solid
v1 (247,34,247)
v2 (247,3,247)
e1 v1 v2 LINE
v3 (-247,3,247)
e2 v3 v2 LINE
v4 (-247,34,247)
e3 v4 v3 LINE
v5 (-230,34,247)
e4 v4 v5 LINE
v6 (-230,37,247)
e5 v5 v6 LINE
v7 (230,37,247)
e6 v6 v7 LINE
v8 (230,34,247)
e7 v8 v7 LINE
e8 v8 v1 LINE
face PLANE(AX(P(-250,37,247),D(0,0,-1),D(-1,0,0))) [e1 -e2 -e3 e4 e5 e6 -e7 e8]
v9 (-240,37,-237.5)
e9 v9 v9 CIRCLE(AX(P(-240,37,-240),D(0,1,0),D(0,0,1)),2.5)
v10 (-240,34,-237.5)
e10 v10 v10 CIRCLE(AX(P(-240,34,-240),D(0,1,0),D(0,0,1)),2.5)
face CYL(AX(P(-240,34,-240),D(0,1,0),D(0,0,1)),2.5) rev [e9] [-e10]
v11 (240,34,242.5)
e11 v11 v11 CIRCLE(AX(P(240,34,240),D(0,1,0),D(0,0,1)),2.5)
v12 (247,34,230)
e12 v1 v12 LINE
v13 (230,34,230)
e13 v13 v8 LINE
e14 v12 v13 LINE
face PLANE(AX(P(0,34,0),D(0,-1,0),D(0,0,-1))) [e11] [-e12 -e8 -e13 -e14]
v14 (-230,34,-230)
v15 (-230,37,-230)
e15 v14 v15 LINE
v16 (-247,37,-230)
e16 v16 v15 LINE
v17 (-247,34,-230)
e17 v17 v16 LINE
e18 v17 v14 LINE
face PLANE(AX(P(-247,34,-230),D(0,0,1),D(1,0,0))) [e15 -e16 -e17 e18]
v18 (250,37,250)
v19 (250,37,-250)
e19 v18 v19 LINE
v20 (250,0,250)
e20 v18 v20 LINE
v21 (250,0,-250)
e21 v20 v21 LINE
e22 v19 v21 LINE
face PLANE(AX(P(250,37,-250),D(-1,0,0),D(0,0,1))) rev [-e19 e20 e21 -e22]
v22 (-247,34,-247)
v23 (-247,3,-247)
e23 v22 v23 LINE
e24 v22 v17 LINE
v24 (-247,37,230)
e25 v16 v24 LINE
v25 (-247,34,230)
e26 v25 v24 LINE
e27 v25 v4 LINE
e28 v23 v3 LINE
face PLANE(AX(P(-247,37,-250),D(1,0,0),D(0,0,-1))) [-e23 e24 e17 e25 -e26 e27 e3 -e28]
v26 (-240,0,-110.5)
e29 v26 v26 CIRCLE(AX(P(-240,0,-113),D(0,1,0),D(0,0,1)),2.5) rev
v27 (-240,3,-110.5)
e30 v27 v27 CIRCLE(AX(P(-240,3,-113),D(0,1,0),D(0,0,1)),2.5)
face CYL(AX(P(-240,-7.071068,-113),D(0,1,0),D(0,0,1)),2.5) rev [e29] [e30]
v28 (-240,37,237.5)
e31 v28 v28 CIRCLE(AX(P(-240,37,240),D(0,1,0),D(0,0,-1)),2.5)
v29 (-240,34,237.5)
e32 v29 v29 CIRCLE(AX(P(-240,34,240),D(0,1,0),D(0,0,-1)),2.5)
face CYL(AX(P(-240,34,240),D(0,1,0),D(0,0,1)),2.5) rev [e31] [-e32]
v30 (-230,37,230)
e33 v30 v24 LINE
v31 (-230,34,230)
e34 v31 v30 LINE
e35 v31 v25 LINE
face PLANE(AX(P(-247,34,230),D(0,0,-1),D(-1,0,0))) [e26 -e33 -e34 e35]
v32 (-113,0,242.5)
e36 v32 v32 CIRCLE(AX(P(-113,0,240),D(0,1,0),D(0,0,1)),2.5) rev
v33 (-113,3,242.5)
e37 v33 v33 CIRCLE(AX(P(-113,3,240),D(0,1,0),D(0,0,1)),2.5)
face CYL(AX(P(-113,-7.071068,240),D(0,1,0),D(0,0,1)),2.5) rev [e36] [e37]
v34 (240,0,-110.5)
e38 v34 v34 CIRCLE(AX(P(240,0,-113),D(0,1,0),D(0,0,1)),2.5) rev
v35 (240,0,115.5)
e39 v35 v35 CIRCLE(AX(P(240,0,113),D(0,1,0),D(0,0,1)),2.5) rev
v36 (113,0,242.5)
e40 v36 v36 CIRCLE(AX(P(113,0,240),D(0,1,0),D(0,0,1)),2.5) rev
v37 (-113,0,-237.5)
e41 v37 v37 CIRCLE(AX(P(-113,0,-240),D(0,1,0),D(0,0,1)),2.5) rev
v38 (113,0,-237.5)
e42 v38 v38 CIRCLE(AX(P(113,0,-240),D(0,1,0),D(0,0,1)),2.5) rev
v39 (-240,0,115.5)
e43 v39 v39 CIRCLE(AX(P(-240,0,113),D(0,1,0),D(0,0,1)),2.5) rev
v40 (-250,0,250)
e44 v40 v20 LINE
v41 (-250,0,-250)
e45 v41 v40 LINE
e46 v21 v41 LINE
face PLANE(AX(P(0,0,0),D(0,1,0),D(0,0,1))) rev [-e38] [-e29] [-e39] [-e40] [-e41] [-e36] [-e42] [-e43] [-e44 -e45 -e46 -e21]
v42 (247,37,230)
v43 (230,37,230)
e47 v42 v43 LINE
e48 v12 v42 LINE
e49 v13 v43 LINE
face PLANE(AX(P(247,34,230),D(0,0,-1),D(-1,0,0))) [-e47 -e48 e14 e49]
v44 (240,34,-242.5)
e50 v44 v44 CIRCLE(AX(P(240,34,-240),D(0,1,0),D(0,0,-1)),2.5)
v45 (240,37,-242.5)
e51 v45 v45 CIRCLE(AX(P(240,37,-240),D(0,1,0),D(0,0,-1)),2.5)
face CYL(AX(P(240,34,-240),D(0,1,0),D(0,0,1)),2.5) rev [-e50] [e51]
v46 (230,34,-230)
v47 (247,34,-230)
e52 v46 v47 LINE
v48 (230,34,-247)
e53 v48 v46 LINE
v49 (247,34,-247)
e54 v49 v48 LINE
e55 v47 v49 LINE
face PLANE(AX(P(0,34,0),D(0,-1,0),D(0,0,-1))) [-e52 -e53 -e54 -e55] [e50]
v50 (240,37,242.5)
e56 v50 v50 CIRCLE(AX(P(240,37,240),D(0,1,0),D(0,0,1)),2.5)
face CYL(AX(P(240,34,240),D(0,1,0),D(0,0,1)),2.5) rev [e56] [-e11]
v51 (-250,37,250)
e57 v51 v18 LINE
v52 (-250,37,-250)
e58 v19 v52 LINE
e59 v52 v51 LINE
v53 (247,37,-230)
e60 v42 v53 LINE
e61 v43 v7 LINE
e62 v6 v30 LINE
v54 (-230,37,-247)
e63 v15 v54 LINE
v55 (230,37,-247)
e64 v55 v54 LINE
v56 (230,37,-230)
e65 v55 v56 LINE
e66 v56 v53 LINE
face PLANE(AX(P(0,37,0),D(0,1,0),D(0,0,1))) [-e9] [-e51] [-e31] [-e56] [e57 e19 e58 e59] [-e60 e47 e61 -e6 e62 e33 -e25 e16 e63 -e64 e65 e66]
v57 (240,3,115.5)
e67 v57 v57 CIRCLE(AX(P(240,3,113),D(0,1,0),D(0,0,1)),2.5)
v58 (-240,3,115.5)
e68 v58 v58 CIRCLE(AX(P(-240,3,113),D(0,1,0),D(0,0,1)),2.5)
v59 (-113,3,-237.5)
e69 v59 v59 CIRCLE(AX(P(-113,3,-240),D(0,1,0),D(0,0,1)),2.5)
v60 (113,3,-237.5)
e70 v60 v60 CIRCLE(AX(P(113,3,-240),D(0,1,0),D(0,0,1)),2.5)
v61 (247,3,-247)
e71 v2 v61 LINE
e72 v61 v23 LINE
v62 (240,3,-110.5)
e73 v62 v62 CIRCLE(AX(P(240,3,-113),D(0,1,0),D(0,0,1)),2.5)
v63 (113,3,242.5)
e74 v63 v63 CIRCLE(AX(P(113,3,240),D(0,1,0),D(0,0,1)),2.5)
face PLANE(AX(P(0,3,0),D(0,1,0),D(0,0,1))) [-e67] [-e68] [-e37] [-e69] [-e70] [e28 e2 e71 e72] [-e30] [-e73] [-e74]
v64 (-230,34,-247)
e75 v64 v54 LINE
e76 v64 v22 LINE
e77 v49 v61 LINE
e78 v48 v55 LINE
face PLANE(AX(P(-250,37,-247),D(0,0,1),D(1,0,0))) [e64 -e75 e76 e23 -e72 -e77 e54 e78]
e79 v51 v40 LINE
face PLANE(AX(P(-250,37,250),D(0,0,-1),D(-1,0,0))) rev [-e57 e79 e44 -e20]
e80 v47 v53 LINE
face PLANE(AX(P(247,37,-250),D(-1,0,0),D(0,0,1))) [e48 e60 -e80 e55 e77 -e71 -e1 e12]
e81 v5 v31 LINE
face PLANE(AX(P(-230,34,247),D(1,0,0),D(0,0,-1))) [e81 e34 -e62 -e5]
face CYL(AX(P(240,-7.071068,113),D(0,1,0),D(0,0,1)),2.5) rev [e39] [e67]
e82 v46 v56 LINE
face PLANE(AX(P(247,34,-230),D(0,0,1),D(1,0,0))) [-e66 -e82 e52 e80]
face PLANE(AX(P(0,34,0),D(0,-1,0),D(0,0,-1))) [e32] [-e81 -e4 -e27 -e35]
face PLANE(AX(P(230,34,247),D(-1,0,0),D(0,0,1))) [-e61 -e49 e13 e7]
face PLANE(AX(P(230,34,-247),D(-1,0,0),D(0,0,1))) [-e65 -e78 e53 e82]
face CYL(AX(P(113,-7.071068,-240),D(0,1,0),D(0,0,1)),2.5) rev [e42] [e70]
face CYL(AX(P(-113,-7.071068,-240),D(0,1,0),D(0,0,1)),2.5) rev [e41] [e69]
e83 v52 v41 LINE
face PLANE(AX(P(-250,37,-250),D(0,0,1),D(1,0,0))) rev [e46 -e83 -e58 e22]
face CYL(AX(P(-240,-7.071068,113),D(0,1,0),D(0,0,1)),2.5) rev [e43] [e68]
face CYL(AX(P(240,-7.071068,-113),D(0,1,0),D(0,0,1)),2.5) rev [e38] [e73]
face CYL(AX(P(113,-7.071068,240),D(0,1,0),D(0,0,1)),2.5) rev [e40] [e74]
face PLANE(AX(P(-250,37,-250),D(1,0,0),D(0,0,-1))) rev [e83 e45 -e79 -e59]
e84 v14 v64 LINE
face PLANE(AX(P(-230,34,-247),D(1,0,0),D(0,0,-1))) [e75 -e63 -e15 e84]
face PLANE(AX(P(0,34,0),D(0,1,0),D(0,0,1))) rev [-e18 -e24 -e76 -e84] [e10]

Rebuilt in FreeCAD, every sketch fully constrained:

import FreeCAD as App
import Part
import Sketcher
Q = App.Units.Quantity


def faces_at(feature, points):
    """Names of the faces that lie closest to the given points."""
    faces = feature.Shape.Faces
    near = lambda p: min(range(len(faces)), key=lambda i: faces[i].distToShape(Part.Vertex(*p))[0])
    return sorted({f"Face{near(p) + 1}" for p in points})

doc = App.newDocument("Part")
body = doc.addObject("PartDesign::Body", "Body")

# Sketch on XZ plane
sketch1 = body.newObject("Sketcher::SketchObject", "Sketch")
sketch1.AttachmentSupport = (doc.getObject("XZ_Plane"), [""])
sketch1.MapMode = "FlatFace"
sketch1.addGeometry([
    Part.LineSegment(App.Vector(-250, -250, 0), App.Vector(-250, 250, 0)),
    Part.LineSegment(App.Vector(-250, 250, 0), App.Vector(250, 250, 0)),
    Part.LineSegment(App.Vector(250, 250, 0), App.Vector(250, -250, 0)),
    Part.LineSegment(App.Vector(250, -250, 0), App.Vector(-250, -250, 0)),
], False)
sketch1.addConstraint([
    Sketcher.Constraint("Coincident", 0, 2, 1, 1),
    Sketcher.Constraint("Coincident", 1, 2, 2, 1),
    Sketcher.Constraint("Coincident", 2, 2, 3, 1),
    Sketcher.Constraint("Coincident", 3, 2, 0, 1),
    Sketcher.Constraint("Vertical", 0),
    Sketcher.Constraint("Horizontal", 1),
    Sketcher.Constraint("Vertical", 2),
    Sketcher.Constraint("Horizontal", 3),
    Sketcher.Constraint("Symmetric", 0, 2, 2, 2, -1, 1),
    Sketcher.Constraint("Equal", 3, 0),
    Sketcher.Constraint("DistanceX", 1, 1, 1, 2, Q("500 mm")),
])
pad1 = body.newObject("PartDesign::Pad", "Pad")
pad1.Profile = sketch1
pad1.Length = 37
pad1.Reversed = True
doc.recompute()

thickness = body.newObject("PartDesign::Thickness", "Thickness")
thickness.Base = (pad1, faces_at(pad1, [(0, 37, 0)]))
thickness.Value = 3
thickness.Reversed = True
thickness.Join = "Intersection"

# Sketch on XZ plane
sketch2 = body.newObject("Sketcher::SketchObject", "Sketch001")
sketch2.AttachmentSupport = (doc.getObject("XZ_Plane"), [""])
sketch2.MapMode = "FlatFace"
sketch2.AttachmentOffset = App.Placement(App.Vector(0, 0, -37), App.Rotation())
sketch2.addGeometry([
    Part.Circle(App.Vector(113, 240, 0), App.Vector(0, 0, 1), 2.5),  # 0
    Part.Circle(App.Vector(-113, 240, 0), App.Vector(0, 0, 1), 2.5),  # 1
    Part.Circle(App.Vector(240, -113, 0), App.Vector(0, 0, 1), 2.5),  # 2
    Part.Circle(App.Vector(240, 113, 0), App.Vector(0, 0, 1), 2.5),  # 3
    Part.Circle(App.Vector(-240, 113, 0), App.Vector(0, 0, 1), 2.5),  # 4
    Part.Circle(App.Vector(-240, -113, 0), App.Vector(0, 0, 1), 2.5),  # 5
    Part.Circle(App.Vector(-113, -240, 0), App.Vector(0, 0, 1), 2.5),  # 6
    Part.Circle(App.Vector(113, -240, 0), App.Vector(0, 0, 1), 2.5),  # 7
], False)
sketch2.addConstraint([
    Sketcher.Constraint("Equal", 0, 1),
    Sketcher.Constraint("Equal", 1, 2),
    Sketcher.Constraint("Equal", 2, 3),
    Sketcher.Constraint("Equal", 3, 4),
    Sketcher.Constraint("Equal", 4, 5),
    Sketcher.Constraint("Equal", 5, 6),
    Sketcher.Constraint("Equal", 6, 7),
    Sketcher.Constraint("Symmetric", 2, 3, 4, 3, -1, 1),
    Sketcher.Constraint("Symmetric", 3, 3, 5, 3, -1, 1),
    Sketcher.Constraint("Symmetric", 0, 3, 6, 3, -1, 1),
    Sketcher.Constraint("Symmetric", 1, 3, 7, 3, -1, 1),
    Sketcher.Constraint("Symmetric", 0, 3, 1, 3, -2),
    Sketcher.Constraint("Symmetric", 3, 3, 4, 3, -2),
    Sketcher.Constraint("Diameter", 0, Q("5 mm")),
    Sketcher.Constraint("DistanceX", -1, 1, 0, 3, Q("113 mm")),
    Sketcher.Constraint("DistanceY", -1, 1, 0, 3, Q("240 mm")),
    Sketcher.Constraint("DistanceX", -1, 1, 2, 3, Q("240 mm")),
    Sketcher.Constraint("DistanceY", 2, 3, -1, 1, Q("113 mm")),
])
pocket1 = body.newObject("PartDesign::Pocket", "Pocket")
pocket1.Profile = sketch2
pocket1.Length = 37
pocket1.Reversed = True

# Sketch on XZ plane
sketch3 = body.newObject("Sketcher::SketchObject", "Sketch002")
sketch3.AttachmentSupport = (doc.getObject("XZ_Plane"), [""])
sketch3.MapMode = "FlatFace"
sketch3.AttachmentOffset = App.Placement(App.Vector(0, 0, -37), App.Rotation())
sketch3.addGeometry([
    Part.LineSegment(App.Vector(-247, -247, 0), App.Vector(-247, -230, 0)),  # 0
    Part.LineSegment(App.Vector(-247, -230, 0), App.Vector(-230, -230, 0)),  # 1
    Part.LineSegment(App.Vector(-230, -230, 0), App.Vector(-230, -247, 0)),  # 2
    Part.LineSegment(App.Vector(-230, -247, 0), App.Vector(-247, -247, 0)),  # 3
    Part.LineSegment(App.Vector(230, -247, 0), App.Vector(230, -230, 0)),  # 4
    Part.LineSegment(App.Vector(230, -230, 0), App.Vector(247, -230, 0)),  # 5
    Part.LineSegment(App.Vector(247, -230, 0), App.Vector(247, -247, 0)),  # 6
    Part.LineSegment(App.Vector(247, -247, 0), App.Vector(230, -247, 0)),  # 7
    Part.LineSegment(App.Vector(230, 230, 0), App.Vector(230, 247, 0)),  # 8
    Part.LineSegment(App.Vector(230, 247, 0), App.Vector(247, 247, 0)),  # 9
    Part.LineSegment(App.Vector(247, 247, 0), App.Vector(247, 230, 0)),  # 10
    Part.LineSegment(App.Vector(247, 230, 0), App.Vector(230, 230, 0)),  # 11
    Part.LineSegment(App.Vector(-247, 230, 0), App.Vector(-247, 247, 0)),  # 12
    Part.LineSegment(App.Vector(-247, 247, 0), App.Vector(-230, 247, 0)),  # 13
    Part.LineSegment(App.Vector(-230, 247, 0), App.Vector(-230, 230, 0)),  # 14
    Part.LineSegment(App.Vector(-230, 230, 0), App.Vector(-247, 230, 0)),  # 15
], False)
sketch3.addConstraint([
    Sketcher.Constraint("Coincident", 0, 2, 1, 1),
    Sketcher.Constraint("Coincident", 1, 2, 2, 1),
    Sketcher.Constraint("Coincident", 2, 2, 3, 1),
    Sketcher.Constraint("Coincident", 3, 2, 0, 1),
    Sketcher.Constraint("Coincident", 4, 2, 5, 1),
    Sketcher.Constraint("Coincident", 5, 2, 6, 1),
    Sketcher.Constraint("Coincident", 6, 2, 7, 1),
    Sketcher.Constraint("Coincident", 7, 2, 4, 1),
    Sketcher.Constraint("Coincident", 8, 2, 9, 1),
    Sketcher.Constraint("Coincident", 9, 2, 10, 1),
    Sketcher.Constraint("Coincident", 10, 2, 11, 1),
    Sketcher.Constraint("Coincident", 11, 2, 8, 1),
    Sketcher.Constraint("Coincident", 12, 2, 13, 1),
    Sketcher.Constraint("Coincident", 13, 2, 14, 1),
    Sketcher.Constraint("Coincident", 14, 2, 15, 1),
    Sketcher.Constraint("Coincident", 15, 2, 12, 1),
    Sketcher.Constraint("Vertical", 0),
    Sketcher.Constraint("Horizontal", 1),
    Sketcher.Constraint("Vertical", 2),
    Sketcher.Constraint("Horizontal", 3),
    Sketcher.Constraint("Vertical", 4),
    Sketcher.Constraint("Horizontal", 5),
    Sketcher.Constraint("Vertical", 6),
    Sketcher.Constraint("Horizontal", 7),
    Sketcher.Constraint("Vertical", 8),
    Sketcher.Constraint("Horizontal", 9),
    Sketcher.Constraint("Vertical", 10),
    Sketcher.Constraint("Horizontal", 11),
    Sketcher.Constraint("Vertical", 12),
    Sketcher.Constraint("Horizontal", 13),
    Sketcher.Constraint("Vertical", 14),
    Sketcher.Constraint("Horizontal", 15),
    Sketcher.Constraint("Symmetric", 2, 2, 8, 2, -1, 1),
    Sketcher.Constraint("Symmetric", 0, 2, 10, 2, -1, 1),
    Sketcher.Constraint("Symmetric", 6, 2, 12, 2, -1, 1),
    Sketcher.Constraint("Symmetric", 4, 2, 14, 2, -1, 1),
    Sketcher.Constraint("Symmetric", 1, 2, 4, 2, -2),
    Sketcher.Constraint("Symmetric", 3, 2, 6, 2, -2),
    Sketcher.Constraint("Equal", 15, 0),
    Sketcher.Constraint("DistanceX", 1, 1, 1, 2, Q("17 mm")),
    Sketcher.Constraint("DistanceX", 0, 2, -1, 1, Q("247 mm")),
    Sketcher.Constraint("DistanceY", 0, 2, -1, 1, Q("230 mm")),
])
pad2 = body.newObject("PartDesign::Pad", "Pad001")
pad2.Profile = sketch3
pad2.Length = 3

# Sketch on XZ plane
sketch4 = body.newObject("Sketcher::SketchObject", "Sketch003")
sketch4.AttachmentSupport = (doc.getObject("XZ_Plane"), [""])
sketch4.MapMode = "FlatFace"
sketch4.AttachmentOffset = App.Placement(App.Vector(0, 0, -37), App.Rotation())
sketch4.addGeometry([
    Part.Circle(App.Vector(-240, -240, 0), App.Vector(0, 0, 1), 2.5),
    Part.Circle(App.Vector(240, -240, 0), App.Vector(0, 0, 1), 2.5),
    Part.Circle(App.Vector(240, 240, 0), App.Vector(0, 0, 1), 2.5),
    Part.Circle(App.Vector(-240, 240, 0), App.Vector(0, 0, 1), 2.5),
], False)
sketch4.addConstraint([
    Sketcher.Constraint("Equal", 0, 1),
    Sketcher.Constraint("Equal", 1, 2),
    Sketcher.Constraint("Equal", 2, 3),
    Sketcher.Constraint("Symmetric", 0, 3, 2, 3, -1, 1),
    Sketcher.Constraint("Symmetric", 1, 3, 3, 3, -1, 1),
    Sketcher.Constraint("Symmetric", 0, 3, 1, 3, -2),
    Sketcher.Constraint("Diameter", 0, Q("5 mm")),
    Sketcher.Constraint("DistanceX", 0, 3, -1, 1, Q("240 mm")),
    Sketcher.Constraint("DistanceY", 0, 3, -1, 1, Q("240 mm")),
])
pocket2 = body.newObject("PartDesign::Pocket", "Pocket001")
pocket2.Profile = sketch4
pocket2.Length = 3
pocket2.Reversed = True

doc.recompute()
